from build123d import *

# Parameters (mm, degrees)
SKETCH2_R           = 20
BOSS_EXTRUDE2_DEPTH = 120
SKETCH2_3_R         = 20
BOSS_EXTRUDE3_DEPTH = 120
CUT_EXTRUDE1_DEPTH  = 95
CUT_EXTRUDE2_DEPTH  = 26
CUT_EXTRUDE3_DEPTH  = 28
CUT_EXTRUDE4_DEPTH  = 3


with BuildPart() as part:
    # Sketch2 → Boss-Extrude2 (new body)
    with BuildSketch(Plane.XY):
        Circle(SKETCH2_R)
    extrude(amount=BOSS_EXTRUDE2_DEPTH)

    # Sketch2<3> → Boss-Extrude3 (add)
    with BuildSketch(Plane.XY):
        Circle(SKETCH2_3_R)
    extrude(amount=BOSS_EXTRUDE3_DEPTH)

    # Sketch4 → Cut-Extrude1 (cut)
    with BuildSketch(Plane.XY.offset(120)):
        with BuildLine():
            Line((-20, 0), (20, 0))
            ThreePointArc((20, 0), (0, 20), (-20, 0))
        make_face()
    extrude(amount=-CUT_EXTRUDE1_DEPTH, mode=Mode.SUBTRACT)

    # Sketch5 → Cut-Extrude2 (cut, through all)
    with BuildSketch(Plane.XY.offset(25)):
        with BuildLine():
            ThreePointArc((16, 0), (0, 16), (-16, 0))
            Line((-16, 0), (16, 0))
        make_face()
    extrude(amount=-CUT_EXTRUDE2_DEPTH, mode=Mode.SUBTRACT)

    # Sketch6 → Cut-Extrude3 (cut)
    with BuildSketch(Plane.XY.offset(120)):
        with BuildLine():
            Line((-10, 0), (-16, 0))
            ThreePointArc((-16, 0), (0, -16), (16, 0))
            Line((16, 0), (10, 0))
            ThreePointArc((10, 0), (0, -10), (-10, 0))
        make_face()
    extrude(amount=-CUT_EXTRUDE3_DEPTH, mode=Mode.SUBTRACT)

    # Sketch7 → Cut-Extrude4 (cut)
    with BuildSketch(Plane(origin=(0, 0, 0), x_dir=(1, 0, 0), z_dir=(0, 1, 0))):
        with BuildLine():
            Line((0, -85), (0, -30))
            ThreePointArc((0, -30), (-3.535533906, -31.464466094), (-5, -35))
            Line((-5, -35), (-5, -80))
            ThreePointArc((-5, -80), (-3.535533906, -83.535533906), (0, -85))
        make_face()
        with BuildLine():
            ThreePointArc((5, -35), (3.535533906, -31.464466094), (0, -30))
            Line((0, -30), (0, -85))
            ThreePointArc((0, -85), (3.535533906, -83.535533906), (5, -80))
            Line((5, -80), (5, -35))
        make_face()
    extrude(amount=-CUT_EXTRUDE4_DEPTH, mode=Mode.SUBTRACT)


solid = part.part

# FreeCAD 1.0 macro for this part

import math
import FreeCAD as App
import Part
import Sketcher
Q = App.Units.Quantity

doc = App.newDocument("Part")
body = doc.addObject("PartDesign::Body", "Body")

# Sketch on XY plane
sketch1 = body.newObject("Sketcher::SketchObject", "Sketch")
sketch1.AttachmentSupport = (doc.getObject("XY_Plane"), [""])
sketch1.MapMode = "FlatFace"
sketch1.addGeometry(Part.Circle(App.Vector(0, 0, 0), App.Vector(0, 0, 1), 20), False)
sketch1.addConstraint([
    Sketcher.Constraint("Coincident", 0, 3, -1, 1),
    Sketcher.Constraint("Diameter", 0, Q("40 mm")),
])
pad1 = body.newObject("PartDesign::Pad", "Pad")
pad1.Profile = sketch1
pad1.Length = 120

# Sketch on XY plane
sketch2 = body.newObject("Sketcher::SketchObject", "Sketch001")
sketch2.AttachmentSupport = (doc.getObject("XY_Plane"), [""])
sketch2.MapMode = "FlatFace"
sketch2.addGeometry(Part.Circle(App.Vector(0, 0, 0), App.Vector(0, 0, 1), 20), False)
sketch2.addConstraint([
    Sketcher.Constraint("Coincident", 0, 3, -1, 1),
    Sketcher.Constraint("Diameter", 0, Q("40 mm")),
])
pad2 = body.newObject("PartDesign::Pad", "Pad001")
pad2.Profile = sketch2
pad2.Length = 120

# Sketch on XY plane
sketch3 = body.newObject("Sketcher::SketchObject", "Sketch002")
sketch3.AttachmentSupport = (doc.getObject("XY_Plane"), [""])
sketch3.MapMode = "FlatFace"
sketch3.AttachmentOffset = App.Placement(App.Vector(0, 0, 120), App.Rotation())
sketch3.addGeometry([
    Part.LineSegment(App.Vector(-20, 0, 0), App.Vector(20, 0, 0)),
    Part.ArcOfCircle(Part.Circle(App.Vector(0, 0, 0), App.Vector(0, 0, 1), 20), math.radians(0), math.radians(180)),
], False)
sketch3.addConstraint([
    Sketcher.Constraint("Coincident", 0, 1, 1, 2),
    Sketcher.Constraint("Coincident", 1, 1, 0, 2),
    Sketcher.Constraint("Horizontal", 0),
    Sketcher.Constraint("Coincident", 1, 3, -1, 1),
    Sketcher.Constraint("PointOnObject", 0, 1, -1),
    Sketcher.Constraint("Radius", 1, Q("20 mm")),
])
pocket1 = body.newObject("PartDesign::Pocket", "Pocket")
pocket1.Profile = sketch3
pocket1.Length = 95

# Sketch on XY plane
sketch4 = body.newObject("Sketcher::SketchObject", "Sketch003")
sketch4.AttachmentSupport = (doc.getObject("XY_Plane"), [""])
sketch4.MapMode = "FlatFace"
sketch4.AttachmentOffset = App.Placement(App.Vector(0, 0, 25), App.Rotation())
sketch4.addGeometry([
    Part.ArcOfCircle(Part.Circle(App.Vector(0, 0, 0), App.Vector(0, 0, 1), 16), math.radians(0), math.radians(180)),
    Part.LineSegment(App.Vector(-16, 0, 0), App.Vector(16, 0, 0)),
], False)
sketch4.addConstraint([
    Sketcher.Constraint("Coincident", 0, 1, 1, 2),
    Sketcher.Constraint("Coincident", 1, 1, 0, 2),
    Sketcher.Constraint("Horizontal", 1),
    Sketcher.Constraint("Coincident", 0, 3, -1, 1),
    Sketcher.Constraint("PointOnObject", 0, 1, -1),
    Sketcher.Constraint("Radius", 0, Q("16 mm")),
])
pocket2 = body.newObject("PartDesign::Pocket", "Pocket001")
pocket2.Profile = sketch4
pocket2.Type = "ThroughAll"

# Sketch on XY plane
sketch5 = body.newObject("Sketcher::SketchObject", "Sketch004")
sketch5.AttachmentSupport = (doc.getObject("XY_Plane"), [""])
sketch5.MapMode = "FlatFace"
sketch5.AttachmentOffset = App.Placement(App.Vector(0, 0, 120), App.Rotation())
sketch5.addGeometry([
    Part.LineSegment(App.Vector(-10, 0, 0), App.Vector(-16, 0, 0)),
    Part.ArcOfCircle(Part.Circle(App.Vector(0, 0, 0), App.Vector(0, 0, 1), 16), math.radians(180), math.radians(360)),
    Part.LineSegment(App.Vector(16, 0, 0), App.Vector(10, 0, 0)),
    Part.ArcOfCircle(Part.Circle(App.Vector(0, 0, 0), App.Vector(0, 0, 1), 10), math.radians(180), math.radians(360)),
], False)
sketch5.addConstraint([
    Sketcher.Constraint("Coincident", 0, 2, 1, 1),
    Sketcher.Constraint("Coincident", 1, 2, 2, 1),
    Sketcher.Constraint("Coincident", 2, 2, 3, 2),
    Sketcher.Constraint("Coincident", 3, 1, 0, 1),
    Sketcher.Constraint("Horizontal", 0),
    Sketcher.Constraint("Horizontal", 2),
    Sketcher.Constraint("Coincident", 1, 3, -1, 1),
    Sketcher.Constraint("Coincident", 3, 3, -1, 1),
    Sketcher.Constraint("PointOnObject", 0, 2, -1),
    Sketcher.Constraint("PointOnObject", 1, 2, -1),
    Sketcher.Constraint("Radius", 1, Q("16 mm")),
    Sketcher.Constraint("Radius", 3, Q("10 mm")),
])
pocket3 = body.newObject("PartDesign::Pocket", "Pocket002")
pocket3.Profile = sketch5
pocket3.Length = 28

# Sketch on XZ plane
sketch6 = body.newObject("Sketcher::SketchObject", "Sketch005")
sketch6.AttachmentSupport = (doc.getObject("XZ_Plane"), [""])
sketch6.MapMode = "FlatFace"
sketch6.addGeometry([
    Part.ArcOfCircle(Part.Circle(App.Vector(0, 35, 0), App.Vector(0, 0, 1), 5), math.radians(180), math.radians(270)),  # 0
    Part.LineSegment(App.Vector(-5, 35, 0), App.Vector(-5, 80, 0)),  # 1
    Part.ArcOfCircle(Part.Circle(App.Vector(0, 80, 0), App.Vector(0, 0, 1), 5), math.radians(90), math.radians(180)),  # 2
    Part.ArcOfCircle(Part.Circle(App.Vector(0, 80, 0), App.Vector(0, 0, 1), 5), math.radians(0), math.radians(90)),  # 3
    Part.LineSegment(App.Vector(5, 80, 0), App.Vector(5, 35, 0)),  # 4
    Part.ArcOfCircle(Part.Circle(App.Vector(0, 35, 0), App.Vector(0, 0, 1), 5), math.radians(-90), math.radians(0)),  # 5
], False)
sketch6.addConstraint([
    Sketcher.Constraint("Tangent", 0, 1, 1, 1),
    Sketcher.Constraint("Tangent", 1, 2, 2, 2),
    Sketcher.Constraint("Tangent", 2, 1, 3, 2),
    Sketcher.Constraint("Tangent", 3, 1, 4, 1),
    Sketcher.Constraint("Tangent", 4, 2, 5, 2),
    Sketcher.Constraint("Tangent", 5, 1, 0, 2),
    Sketcher.Constraint("Vertical", 1),
    Sketcher.Constraint("Vertical", 4),
    Sketcher.Constraint("Equal", 0, 2),
    Sketcher.Constraint("Equal", 2, 3),
    Sketcher.Constraint("PointOnObject", 0, 3, -2),
    Sketcher.Constraint("PointOnObject", 2, 1, -2),
    Sketcher.Constraint("PointOnObject", 5, 1, -2),
    Sketcher.Constraint("Radius", 0, Q("5 mm")),
    Sketcher.Constraint("DistanceY", 1, 1, 1, 2, Q("45 mm")),
    Sketcher.Constraint("DistanceY", -1, 1, 0, 3, Q("35 mm")),
])
pocket4 = body.newObject("PartDesign::Pocket", "Pocket003")
pocket4.Profile = sketch6
pocket4.Length = 3
pocket4.Reversed = True

doc.recompute()
